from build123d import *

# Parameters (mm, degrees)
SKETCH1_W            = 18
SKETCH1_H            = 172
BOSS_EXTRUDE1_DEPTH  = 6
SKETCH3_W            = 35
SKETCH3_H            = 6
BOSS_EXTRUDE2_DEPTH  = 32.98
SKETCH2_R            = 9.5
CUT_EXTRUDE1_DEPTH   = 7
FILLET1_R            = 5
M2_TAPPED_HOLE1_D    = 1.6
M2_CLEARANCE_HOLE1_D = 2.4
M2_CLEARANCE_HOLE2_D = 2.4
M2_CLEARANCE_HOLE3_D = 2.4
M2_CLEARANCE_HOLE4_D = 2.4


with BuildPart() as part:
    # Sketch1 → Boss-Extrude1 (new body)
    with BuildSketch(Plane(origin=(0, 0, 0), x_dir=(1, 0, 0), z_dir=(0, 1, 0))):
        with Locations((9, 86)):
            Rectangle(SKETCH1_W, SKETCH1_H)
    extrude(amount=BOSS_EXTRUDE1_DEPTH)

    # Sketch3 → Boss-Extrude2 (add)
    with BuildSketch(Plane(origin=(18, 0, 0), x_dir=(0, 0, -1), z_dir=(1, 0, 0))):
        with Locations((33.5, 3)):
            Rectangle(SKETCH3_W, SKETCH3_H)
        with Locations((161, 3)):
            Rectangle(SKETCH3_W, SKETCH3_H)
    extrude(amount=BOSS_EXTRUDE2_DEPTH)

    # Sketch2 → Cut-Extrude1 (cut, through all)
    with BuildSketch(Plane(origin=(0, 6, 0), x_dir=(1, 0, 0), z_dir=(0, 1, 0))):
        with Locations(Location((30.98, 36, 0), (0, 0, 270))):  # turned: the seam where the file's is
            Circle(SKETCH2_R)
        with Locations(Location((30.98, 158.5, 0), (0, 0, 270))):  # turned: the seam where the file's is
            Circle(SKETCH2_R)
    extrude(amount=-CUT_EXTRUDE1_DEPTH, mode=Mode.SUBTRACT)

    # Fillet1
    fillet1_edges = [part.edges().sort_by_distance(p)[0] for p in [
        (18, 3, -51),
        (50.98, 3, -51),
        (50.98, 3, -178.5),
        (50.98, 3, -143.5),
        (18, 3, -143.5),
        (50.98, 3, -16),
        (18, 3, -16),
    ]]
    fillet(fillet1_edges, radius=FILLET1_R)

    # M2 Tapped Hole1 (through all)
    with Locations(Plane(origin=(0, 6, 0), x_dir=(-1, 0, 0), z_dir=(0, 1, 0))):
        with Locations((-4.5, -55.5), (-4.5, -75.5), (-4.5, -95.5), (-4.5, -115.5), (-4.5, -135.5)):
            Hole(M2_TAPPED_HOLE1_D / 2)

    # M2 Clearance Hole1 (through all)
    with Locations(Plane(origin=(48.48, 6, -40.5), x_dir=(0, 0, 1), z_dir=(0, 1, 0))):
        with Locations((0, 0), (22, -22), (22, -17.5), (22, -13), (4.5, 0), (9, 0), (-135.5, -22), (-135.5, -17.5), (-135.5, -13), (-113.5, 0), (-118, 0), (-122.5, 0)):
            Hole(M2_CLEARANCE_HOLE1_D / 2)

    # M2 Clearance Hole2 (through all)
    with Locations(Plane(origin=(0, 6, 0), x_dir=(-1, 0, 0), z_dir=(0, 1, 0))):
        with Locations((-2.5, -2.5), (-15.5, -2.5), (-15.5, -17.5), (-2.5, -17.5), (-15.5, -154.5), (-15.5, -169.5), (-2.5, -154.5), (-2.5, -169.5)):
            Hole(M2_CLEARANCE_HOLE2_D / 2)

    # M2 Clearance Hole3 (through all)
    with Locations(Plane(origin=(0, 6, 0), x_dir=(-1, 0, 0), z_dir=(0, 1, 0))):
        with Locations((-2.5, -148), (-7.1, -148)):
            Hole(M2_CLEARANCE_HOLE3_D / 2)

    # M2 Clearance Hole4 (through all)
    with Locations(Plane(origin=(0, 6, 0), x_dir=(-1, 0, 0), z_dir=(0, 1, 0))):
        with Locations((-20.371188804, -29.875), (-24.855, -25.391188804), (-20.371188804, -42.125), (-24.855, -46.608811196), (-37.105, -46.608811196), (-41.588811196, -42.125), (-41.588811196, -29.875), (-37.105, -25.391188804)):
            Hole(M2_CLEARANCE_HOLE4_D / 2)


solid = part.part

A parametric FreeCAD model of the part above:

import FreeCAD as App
import Part
import Sketcher


def edges_at(feature, points):
    """Names of the edges that pass closest to the given points."""
    edges = feature.Shape.Edges
    near = lambda p: min(range(len(edges)), key=lambda i: edges[i].distToShape(Part.Vertex(*p))[0])
    return sorted({f"Edge{near(p) + 1}" for p in points})

doc = App.newDocument("Part")
body = doc.addObject("PartDesign::Body", "Body")

# Sketch on XZ plane
sketch1 = body.newObject("Sketcher::SketchObject", "Sketch")
sketch1.AttachmentSupport = (doc.getObject("XZ_Plane"), [""])
sketch1.MapMode = "FlatFace"
sketch1.addGeometry([
    Part.LineSegment(App.Vector(0, -172, 0), App.Vector(0, 0, 0)),
    Part.LineSegment(App.Vector(0, 0, 0), App.Vector(18, 0, 0)),
    Part.LineSegment(App.Vector(18, 0, 0), App.Vector(18, -172, 0)),
    Part.LineSegment(App.Vector(18, -172, 0), App.Vector(0, -172, 0)),
], False)
sketch1.addConstraint([
    Sketcher.Constraint("Coincident", 0, 2, 1, 1),
    Sketcher.Constraint("Coincident", 1, 2, 2, 1),
    Sketcher.Constraint("Coincident", 2, 2, 3, 1),
    Sketcher.Constraint("Coincident", 3, 2, 0, 1),
    Sketcher.Constraint("Vertical", 0),
    Sketcher.Constraint("Horizontal", 1),
    Sketcher.Constraint("Vertical", 2),
    Sketcher.Constraint("Horizontal", 3),
    Sketcher.Constraint("Coincident", 0, 2, -1, 1),
    Sketcher.Constraint("DistanceX", 1, 1, 1, 2, 18.0),
    Sketcher.Constraint("DistanceY", 0, 1, 0, 2, 172.0),
])
pad1 = body.newObject("PartDesign::Pad", "Pad")
pad1.Profile = sketch1
pad1.Length = 6
pad1.Reversed = True

# Sketch on YZ plane
sketch2 = body.newObject("Sketcher::SketchObject", "Sketch001")
sketch2.AttachmentSupport = (doc.getObject("YZ_Plane"), [""])
sketch2.MapMode = "FlatFace"
sketch2.AttachmentOffset = App.Placement(App.Vector(0, 0, 18), App.Rotation())
sketch2.addGeometry([
    Part.LineSegment(App.Vector(6, -16, 0), App.Vector(0, -16, 0)),  # 0
    Part.LineSegment(App.Vector(0, -16, 0), App.Vector(0, -51, 0)),  # 1
    Part.LineSegment(App.Vector(0, -51, 0), App.Vector(6, -51, 0)),  # 2
    Part.LineSegment(App.Vector(6, -51, 0), App.Vector(6, -16, 0)),  # 3
    Part.LineSegment(App.Vector(6, -144, 0), App.Vector(0, -144, 0)),  # 4
    Part.LineSegment(App.Vector(0, -144, 0), App.Vector(0, -178, 0)),  # 5
    Part.LineSegment(App.Vector(0, -178, 0), App.Vector(6, -178, 0)),  # 6
    Part.LineSegment(App.Vector(6, -178, 0), App.Vector(6, -144, 0)),  # 7
], False)
sketch2.addConstraint([
    Sketcher.Constraint("Coincident", 0, 2, 1, 1),
    Sketcher.Constraint("Coincident", 1, 2, 2, 1),
    Sketcher.Constraint("Coincident", 2, 2, 3, 1),
    Sketcher.Constraint("Coincident", 3, 2, 0, 1),
    Sketcher.Constraint("Coincident", 4, 2, 5, 1),
    Sketcher.Constraint("Coincident", 5, 2, 6, 1),
    Sketcher.Constraint("Coincident", 6, 2, 7, 1),
    Sketcher.Constraint("Coincident", 7, 2, 4, 1),
    Sketcher.Constraint("Horizontal", 0),
    Sketcher.Constraint("Vertical", 1),
    Sketcher.Constraint("Horizontal", 2),
    Sketcher.Constraint("Vertical", 3),
    Sketcher.Constraint("Horizontal", 4),
    Sketcher.Constraint("Vertical", 5),
    Sketcher.Constraint("Horizontal", 6),
    Sketcher.Constraint("Vertical", 7),
    Sketcher.Constraint("PointOnObject", 0, 2, -2),
    Sketcher.Constraint("PointOnObject", 4, 2, -2),
    Sketcher.Constraint("Vertical", 3, 2, 6, 2),
    Sketcher.Constraint("Equal", 3, 5),
    Sketcher.Constraint("DistanceX", 0, 2, 0, 1, 6.0),
    Sketcher.Constraint("DistanceY", 1, 2, 1, 1, 35.0),
    Sketcher.Constraint("DistanceY", 0, 2, -1, 1, 16.0),
    Sketcher.Constraint("DistanceY", 4, 2, -1, 1, 143.5),
])
pad2 = body.newObject("PartDesign::Pad", "Pad001")
pad2.Profile = sketch2
pad2.Length = 32.98

# Sketch on XZ plane
sketch3 = body.newObject("Sketcher::SketchObject", "Sketch002")
sketch3.AttachmentSupport = (doc.getObject("XZ_Plane"), [""])
sketch3.MapMode = "FlatFace"
sketch3.AttachmentOffset = App.Placement(App.Vector(0, 0, -6), App.Rotation())
sketch3.addGeometry([
    Part.Circle(App.Vector(31, -36, 0), App.Vector(0, 0, 1), 10),
    Part.Circle(App.Vector(31, -158, 0), App.Vector(0, 0, 1), 10),
], False)
sketch3.addConstraint([
    Sketcher.Constraint("Equal", 0, 1),
    Sketcher.Constraint("Vertical", 0, 3, 1, 3),
    Sketcher.Constraint("Diameter", 0, 19.0),
    Sketcher.Constraint("DistanceY", 0, 3, -1, 1, 36.0),
    Sketcher.Constraint("DistanceY", 1, 3, -1, 1, 158.5),
    Sketcher.Constraint("DistanceX", -1, 1, 0, 3, 30.98),
])
pocket1 = body.newObject("PartDesign::Pocket", "Pocket")
pocket1.Profile = sketch3
pocket1.Type = "ThroughAll"
pocket1.Reversed = True
doc.recompute()

fillet = body.newObject("PartDesign::Fillet", "Fillet")
fillet.Base = (pocket1, edges_at(pocket1, [
    (18, 3, -51),
    (50.98, 3, -51),
    (50.98, 3, -178.5),
    (50.98, 3, -143.5),
    (18, 3, -143.5),
    (50.98, 3, -16),
    (18, 3, -16),
]))
fillet.Radius = 5

# Sketch on XZ plane
sketch4 = body.newObject("Sketcher::SketchObject", "Sketch003")
sketch4.AttachmentSupport = (doc.getObject("XZ_Plane"), [""])
sketch4.MapMode = "FlatFace"
sketch4.AttachmentOffset = App.Placement(App.Vector(0, 0, -6), App.Rotation())
sketch4.addGeometry([
    Part.Circle(App.Vector(4.5, -55.5, 0), App.Vector(0, 0, 1), 0.8),  # 0
    Part.Circle(App.Vector(4.5, -75.5, 0), App.Vector(0, 0, 1), 0.8),  # 1
    Part.Circle(App.Vector(4.5, -95.5, 0), App.Vector(0, 0, 1), 0.8),  # 2
    Part.Circle(App.Vector(4.5, -115.5, 0), App.Vector(0, 0, 1), 0.8),  # 3
    Part.Circle(App.Vector(4.5, -135.5, 0), App.Vector(0, 0, 1), 0.8),  # 4
], False)
sketch4.addConstraint([
    Sketcher.Constraint("Equal", 0, 1),
    Sketcher.Constraint("Equal", 1, 2),
    Sketcher.Constraint("Equal", 2, 3),
    Sketcher.Constraint("Equal", 3, 4),
    Sketcher.Constraint("Vertical", 0, 3, 1, 3),
    Sketcher.Constraint("Vertical", 1, 3, 2, 3),
    Sketcher.Constraint("Vertical", 2, 3, 3, 3),
    Sketcher.Constraint("Vertical", 3, 3, 4, 3),
    Sketcher.Constraint("Diameter", 0, 1.6),
    Sketcher.Constraint("DistanceY", 1, 3, 0, 3, 20.0),
    Sketcher.Constraint("DistanceY", 2, 3, 1, 3, 20.0),
    Sketcher.Constraint("DistanceY", 3, 3, 2, 3, 20.0),
    Sketcher.Constraint("DistanceY", 4, 3, 3, 3, 20.0),
    Sketcher.Constraint("DistanceX", -1, 1, 0, 3, 4.5),
    Sketcher.Constraint("DistanceY", 0, 3, -1, 1, 55.5),
])
doc.recompute()
hole = body.newObject("PartDesign::Hole", "Hole")
hole.Profile = sketch4
hole.ThreadType = "None"
hole.Diameter = 1.6
hole.DepthType = "ThroughAll"
hole.Reversed = True

# Sketch on XZ plane
sketch5 = body.newObject("Sketcher::SketchObject", "Sketch004")
sketch5.AttachmentSupport = (doc.getObject("XZ_Plane"), [""])
sketch5.MapMode = "FlatFace"
sketch5.AttachmentOffset = App.Placement(App.Vector(0, 0, -6), App.Rotation())
sketch5.addGeometry([
    Part.Circle(App.Vector(48.5, -40.5, 0), App.Vector(0, 0, 1), 1.2),  # 0
    Part.Circle(App.Vector(26.5, -18.5, 0), App.Vector(0, 0, 1), 1.2),  # 1
    Part.Circle(App.Vector(31, -18.5, 0), App.Vector(0, 0, 1), 1.2),  # 2
    Part.Circle(App.Vector(35.5, -18.5, 0), App.Vector(0, 0, 1), 1.2),  # 3
    Part.Circle(App.Vector(48.5, -36, 0), App.Vector(0, 0, 1), 1.2),  # 4
    Part.Circle(App.Vector(48.5, -31.5, 0), App.Vector(0, 0, 1), 1.2),  # 5
    Part.Circle(App.Vector(26.5, -176, 0), App.Vector(0, 0, 1), 1.2),  # 6
    Part.Circle(App.Vector(31, -176, 0), App.Vector(0, 0, 1), 1.2),  # 7
    Part.Circle(App.Vector(35.5, -176, 0), App.Vector(0, 0, 1), 1.2),  # 8
    Part.Circle(App.Vector(48.5, -154, 0), App.Vector(0, 0, 1), 1.2),  # 9
    Part.Circle(App.Vector(48.5, -158.5, 0), App.Vector(0, 0, 1), 1.2),  # 10
    Part.Circle(App.Vector(48.5, -163, 0), App.Vector(0, 0, 1), 1.2),  # 11
], False)
sketch5.addConstraint([
    Sketcher.Constraint("Equal", 0, 1),
    Sketcher.Constraint("Equal", 1, 2),
    Sketcher.Constraint("Equal", 2, 3),
    Sketcher.Constraint("Equal", 3, 4),
    Sketcher.Constraint("Equal", 4, 5),
    Sketcher.Constraint("Equal", 5, 6),
    Sketcher.Constraint("Equal", 6, 7),
    Sketcher.Constraint("Equal", 7, 8),
    Sketcher.Constraint("Equal", 8, 9),
    Sketcher.Constraint("Equal", 9, 10),
    Sketcher.Constraint("Equal", 10, 11),
    Sketcher.Constraint("Horizontal", 1, 3, 2, 3),
    Sketcher.Constraint("Horizontal", 2, 3, 3, 3),
    Sketcher.Constraint("Horizontal", 6, 3, 7, 3),
    Sketcher.Constraint("Horizontal", 7, 3, 8, 3),
    Sketcher.Constraint("Vertical", 0, 3, 4, 3),
    Sketcher.Constraint("Vertical", 4, 3, 5, 3),
    Sketcher.Constraint("Vertical", 1, 3, 6, 3),
    Sketcher.Constraint("Vertical", 2, 3, 7, 3),
    Sketcher.Constraint("Vertical", 3, 3, 8, 3),
    Sketcher.Constraint("Vertical", 5, 3, 9, 3),
    Sketcher.Constraint("Vertical", 9, 3, 10, 3),
    Sketcher.Constraint("Vertical", 10, 3, 11, 3),
    Sketcher.Constraint("Diameter", 0, 2.4),
    Sketcher.Constraint("DistanceY", 4, 3, -1, 1, 36.0),
    Sketcher.Constraint("DistanceY", 6, 3, -1, 1, 176.0),
    Sketcher.Constraint("DistanceY", 9, 3, -1, 1, 154.0),
    Sketcher.Constraint("DistanceY", 11, 3, -1, 1, 163.0),
    Sketcher.Constraint("DistanceX", 1, 3, 0, 3, 22.0),
    Sketcher.Constraint("DistanceY", 0, 3, 1, 3, 22.0),
    Sketcher.Constraint("DistanceX", 1, 3, 3, 3, 9.0),
    Sketcher.Constraint("DistanceY", 0, 3, 5, 3, 9.0),
    Sketcher.Constraint("DistanceY", 10, 3, 0, 3, 118.0),
    Sketcher.Constraint("DistanceY", 0, 3, -1, 1, 40.5),
    Sketcher.Constraint("DistanceX", 1, 3, 2, 3, 4.5),
    Sketcher.Constraint("DistanceX", -1, 1, 0, 3, 48.48),
])
doc.recompute()
hole2 = body.newObject("PartDesign::Hole", "Hole001")
hole2.Profile = sketch5
hole2.ThreadType = "None"
hole2.Diameter = 2.4
hole2.DepthType = "ThroughAll"
hole2.Reversed = True

# Sketch on XZ plane
sketch6 = body.newObject("Sketcher::SketchObject", "Sketch005")
sketch6.AttachmentSupport = (doc.getObject("XZ_Plane"), [""])
sketch6.MapMode = "FlatFace"
sketch6.AttachmentOffset = App.Placement(App.Vector(0, 0, -6), App.Rotation())
sketch6.addGeometry([
    Part.Circle(App.Vector(2.5, -2.5, 0), App.Vector(0, 0, 1), 1.2),  # 0
    Part.Circle(App.Vector(15.5, -2.5, 0), App.Vector(0, 0, 1), 1.2),  # 1
    Part.Circle(App.Vector(15.5, -17.5, 0), App.Vector(0, 0, 1), 1.2),  # 2
    Part.Circle(App.Vector(2.5, -17.5, 0), App.Vector(0, 0, 1), 1.2),  # 3
    Part.Circle(App.Vector(15.5, -154.5, 0), App.Vector(0, 0, 1), 1.2),  # 4
    Part.Circle(App.Vector(15.5, -169.5, 0), App.Vector(0, 0, 1), 1.2),  # 5
    Part.Circle(App.Vector(2.5, -154.5, 0), App.Vector(0, 0, 1), 1.2),  # 6
    Part.Circle(App.Vector(2.5, -169.5, 0), App.Vector(0, 0, 1), 1.2),  # 7
], False)
sketch6.addConstraint([
    Sketcher.Constraint("Equal", 0, 1),
    Sketcher.Constraint("Equal", 1, 2),
    Sketcher.Constraint("Equal", 2, 3),
    Sketcher.Constraint("Equal", 3, 4),
    Sketcher.Constraint("Equal", 4, 5),
    Sketcher.Constraint("Equal", 5, 6),
    Sketcher.Constraint("Equal", 6, 7),
    Sketcher.Constraint("Horizontal", 0, 3, 1, 3),
    Sketcher.Constraint("Horizontal", 2, 3, 3, 3),
    Sketcher.Constraint("Horizontal", 4, 3, 6, 3),
    Sketcher.Constraint("Horizontal", 5, 3, 7, 3),
    Sketcher.Constraint("Vertical", 1, 3, 2, 3),
    Sketcher.Constraint("Vertical", 0, 3, 3, 3),
    Sketcher.Constraint("Vertical", 2, 3, 4, 3),
    Sketcher.Constraint("Vertical", 4, 3, 5, 3),
    Sketcher.Constraint("Vertical", 3, 3, 6, 3),
    Sketcher.Constraint("Vertical", 6, 3, 7, 3),
    Sketcher.Constraint("Diameter", 0, 2.4),
    Sketcher.Constraint("DistanceX", 0, 3, 1, 3, 13.0),
    Sketcher.Constraint("DistanceY", 2, 3, 1, 3, 15.0),
    Sketcher.Constraint("DistanceY", 4, 3, 2, 3, 137.0),
    Sketcher.Constraint("DistanceY", 5, 3, 4, 3, 15.0),
    Sketcher.Constraint("DistanceX", -1, 1, 0, 3, 2.5),
    Sketcher.Constraint("DistanceY", 0, 3, -1, 1, 2.5),
])
doc.recompute()
hole3 = body.newObject("PartDesign::Hole", "Hole002")
hole3.Profile = sketch6
hole3.ThreadType = "None"
hole3.Diameter = 2.4
hole3.DepthType = "ThroughAll"
hole3.Reversed = True

# Sketch on XZ plane
sketch7 = body.newObject("Sketcher::SketchObject", "Sketch006")
sketch7.AttachmentSupport = (doc.getObject("XZ_Plane"), [""])
sketch7.MapMode = "FlatFace"
sketch7.AttachmentOffset = App.Placement(App.Vector(0, 0, -6), App.Rotation())
sketch7.addGeometry([
    Part.Circle(App.Vector(2.5, -148, 0), App.Vector(0, 0, 1), 1.2),
    Part.Circle(App.Vector(7.1, -148, 0), App.Vector(0, 0, 1), 1.2),
], False)
sketch7.addConstraint([
    Sketcher.Constraint("Equal", 0, 1),
    Sketcher.Constraint("Horizontal", 0, 3, 1, 3),
    Sketcher.Constraint("Diameter", 0, 2.4),
    Sketcher.Constraint("DistanceY", 0, 3, -1, 1, 148.0),
    Sketcher.Constraint("DistanceX", -1, 1, 0, 3, 2.5),
    Sketcher.Constraint("DistanceX", -1, 1, 1, 3, 7.1),
])
doc.recompute()
hole4 = body.newObject("PartDesign::Hole", "Hole003")
hole4.Profile = sketch7
hole4.ThreadType = "None"
hole4.Diameter = 2.4
hole4.DepthType = "ThroughAll"
hole4.Reversed = True

# Sketch on XZ plane
sketch8 = body.newObject("Sketcher::SketchObject", "Sketch007")
sketch8.AttachmentSupport = (doc.getObject("XZ_Plane"), [""])
sketch8.MapMode = "FlatFace"
sketch8.AttachmentOffset = App.Placement(App.Vector(0, 0, -6), App.Rotation())
sketch8.addGeometry([
    Part.Circle(App.Vector(20.4, -29.9, 0), App.Vector(0, 0, 1), 1.2),  # 0
    Part.Circle(App.Vector(24.9, -25.4, 0), App.Vector(0, 0, 1), 1.2),  # 1
    Part.Circle(App.Vector(20.4, -42.1, 0), App.Vector(0, 0, 1), 1.2),  # 2
    Part.Circle(App.Vector(24.9, -46.6, 0), App.Vector(0, 0, 1), 1.2),  # 3
    Part.Circle(App.Vector(37.1, -46.6, 0), App.Vector(0, 0, 1), 1.2),  # 4
    Part.Circle(App.Vector(41.6, -42.1, 0), App.Vector(0, 0, 1), 1.2),  # 5
    Part.Circle(App.Vector(41.6, -29.9, 0), App.Vector(0, 0, 1), 1.2),  # 6
    Part.Circle(App.Vector(37.1, -25.4, 0), App.Vector(0, 0, 1), 1.2),  # 7
], False)
sketch8.addConstraint([
    Sketcher.Constraint("Equal", 0, 1),
    Sketcher.Constraint("Equal", 1, 2),
    Sketcher.Constraint("Equal", 2, 3),
    Sketcher.Constraint("Equal", 3, 4),
    Sketcher.Constraint("Equal", 4, 5),
    Sketcher.Constraint("Equal", 5, 6),
    Sketcher.Constraint("Equal", 6, 7),
    Sketcher.Constraint("Horizontal", 3, 3, 4, 3),
    Sketcher.Constraint("Horizontal", 2, 3, 5, 3),
    Sketcher.Constraint("Horizontal", 0, 3, 6, 3),
    Sketcher.Constraint("Horizontal", 1, 3, 7, 3),
    Sketcher.Constraint("Vertical", 0, 3, 2, 3),
    Sketcher.Constraint("Vertical", 1, 3, 3, 3),
    Sketcher.Constraint("Vertical", 5, 3, 6, 3),
    Sketcher.Constraint("Vertical", 4, 3, 7, 3),
    Sketcher.Constraint("Diameter", 0, 2.4),
    Sketcher.Constraint("DistanceY", 2, 3, 0, 3, 12.25),
    Sketcher.Constraint("DistanceX", 3, 3, 4, 3, 12.25),
    Sketcher.Constraint("DistanceY", 0, 3, -1, 1, 29.875),
    Sketcher.Constraint("DistanceX", -1, 1, 1, 3, 24.855),
    Sketcher.Constraint("DistanceX", -1, 1, 0, 3, 20.371189),
    Sketcher.Constraint("DistanceY", 1, 3, -1, 1, 25.391189),
    Sketcher.Constraint("DistanceY", 3, 3, -1, 1, 46.608811),
    Sketcher.Constraint("DistanceX", -1, 1, 5, 3, 41.588811),
])
doc.recompute()
hole5 = body.newObject("PartDesign::Hole", "Hole004")
hole5.Profile = sketch8
hole5.ThreadType = "None"
hole5.Diameter = 2.4
hole5.DepthType = "ThroughAll"
hole5.Reversed = True

doc.recompute()
